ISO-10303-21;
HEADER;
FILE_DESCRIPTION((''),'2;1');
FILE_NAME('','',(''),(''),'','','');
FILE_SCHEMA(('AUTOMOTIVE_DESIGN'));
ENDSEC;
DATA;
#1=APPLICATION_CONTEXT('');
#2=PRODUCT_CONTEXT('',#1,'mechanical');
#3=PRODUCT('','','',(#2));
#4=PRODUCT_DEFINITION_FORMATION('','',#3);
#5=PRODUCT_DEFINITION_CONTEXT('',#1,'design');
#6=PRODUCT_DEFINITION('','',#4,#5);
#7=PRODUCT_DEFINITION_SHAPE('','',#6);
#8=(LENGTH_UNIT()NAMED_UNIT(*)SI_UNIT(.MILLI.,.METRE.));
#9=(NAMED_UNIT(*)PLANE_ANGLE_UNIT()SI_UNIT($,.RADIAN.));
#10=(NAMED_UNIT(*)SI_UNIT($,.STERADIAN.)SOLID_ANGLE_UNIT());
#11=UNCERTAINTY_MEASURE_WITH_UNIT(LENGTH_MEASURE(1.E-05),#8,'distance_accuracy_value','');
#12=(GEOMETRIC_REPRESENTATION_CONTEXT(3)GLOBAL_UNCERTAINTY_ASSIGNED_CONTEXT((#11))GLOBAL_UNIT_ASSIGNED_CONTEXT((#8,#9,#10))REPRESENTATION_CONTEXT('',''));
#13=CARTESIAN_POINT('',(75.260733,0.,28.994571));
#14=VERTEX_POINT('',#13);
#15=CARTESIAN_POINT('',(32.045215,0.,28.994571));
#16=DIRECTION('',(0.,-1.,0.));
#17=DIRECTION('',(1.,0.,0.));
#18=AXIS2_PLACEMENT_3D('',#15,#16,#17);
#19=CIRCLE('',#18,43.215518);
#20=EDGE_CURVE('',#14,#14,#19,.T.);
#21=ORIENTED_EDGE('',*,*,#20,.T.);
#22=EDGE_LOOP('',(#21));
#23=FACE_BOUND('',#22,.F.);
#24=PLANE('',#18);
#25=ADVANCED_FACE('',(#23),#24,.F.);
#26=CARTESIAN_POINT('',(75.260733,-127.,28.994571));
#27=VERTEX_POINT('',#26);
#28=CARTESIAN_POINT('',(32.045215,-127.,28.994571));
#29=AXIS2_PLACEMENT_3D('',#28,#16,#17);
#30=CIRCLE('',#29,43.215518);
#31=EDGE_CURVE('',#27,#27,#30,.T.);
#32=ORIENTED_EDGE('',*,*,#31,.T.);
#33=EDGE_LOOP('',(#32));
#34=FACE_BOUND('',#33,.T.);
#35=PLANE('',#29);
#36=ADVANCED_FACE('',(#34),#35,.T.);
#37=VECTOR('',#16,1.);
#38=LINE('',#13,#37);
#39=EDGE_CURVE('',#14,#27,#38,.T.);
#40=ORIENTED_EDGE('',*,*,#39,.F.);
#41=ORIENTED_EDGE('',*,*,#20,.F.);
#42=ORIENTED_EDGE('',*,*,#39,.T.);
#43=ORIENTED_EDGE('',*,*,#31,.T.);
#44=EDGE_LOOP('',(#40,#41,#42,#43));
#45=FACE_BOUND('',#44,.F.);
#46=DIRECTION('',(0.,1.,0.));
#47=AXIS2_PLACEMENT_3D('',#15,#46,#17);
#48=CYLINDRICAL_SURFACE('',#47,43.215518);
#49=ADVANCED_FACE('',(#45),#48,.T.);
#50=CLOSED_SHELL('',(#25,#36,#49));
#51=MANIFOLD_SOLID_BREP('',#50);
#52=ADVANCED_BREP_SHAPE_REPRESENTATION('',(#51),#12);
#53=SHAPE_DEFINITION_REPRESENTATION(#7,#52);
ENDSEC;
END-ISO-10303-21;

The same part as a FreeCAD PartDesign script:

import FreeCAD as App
import Part
import Sketcher
from FreeCAD import Vector
Q = App.Units.Quantity


def add_polygon(sketch, points):
    """Adds a closed chain of lines whose ends are joined by coincident constraints."""
    first, n = sketch.GeometryCount, len(points)
    for a, b in zip(points, points[1:] + points[:1]):
        sketch.addGeometry(Part.LineSegment(App.Vector(*a, 0), App.Vector(*b, 0)), False)
    for i in range(n):
        sketch.addConstraint(Sketcher.Constraint("Coincident", first + i, 2, first + (i + 1) % n, 1))

doc = App.newDocument("Part")
body = doc.addObject("PartDesign::Body", "Body")

# Sketch on XY plane
sketch1 = body.newObject("Sketcher::SketchObject", "Sketch")
sketch1.AttachmentSupport = (doc.getObject("XY_Plane"), [""])
sketch1.MapMode = "FlatFace"
add_polygon(sketch1, [(0, 0), (0, -22), (24, -22), (24, 0)])  # lines 0-3
sketch1.addConstraint(Sketcher.Constraint("Vertical", 0))
sketch1.addConstraint(Sketcher.Constraint("Horizontal", 1))
sketch1.addConstraint(Sketcher.Constraint("Vertical", 2))
sketch1.addConstraint(Sketcher.Constraint("Horizontal", 3))
sketch1.addConstraint(Sketcher.Constraint("Coincident", 3, 2, -1, 1))
sketch1.addConstraint(Sketcher.Constraint("DistanceX", 1, 1, 1, 2, Q("0.94 in")))
sketch1.addConstraint(Sketcher.Constraint("DistanceY", 0, 2, 0, 1, Q("0.88 in")))
pad1 = body.newObject("PartDesign::Pad", "Pad")
pad1.Profile = sketch1
pad1.Length = Q("1.25 in")

# Sketch on XY plane
sketch2 = body.newObject("Sketcher::SketchObject", "Sketch001")
sketch2.AttachmentSupport = (doc.getObject("XY_Plane"), [""])
sketch2.MapMode = "FlatFace"
sketch2.AttachmentOffset = App.Placement(Vector(0, 0, 1.25 * 25.4), App.Rotation())
sketch2.addGeometry(Part.Circle(Vector(22.5, -1.5, 0), Vector(0, 0, 1), 0.8), False)
sketch2.addConstraint(Sketcher.Constraint("Diameter", 0, 1.592218))
sketch2.addConstraint(Sketcher.Constraint("DistanceX", -1, 1, 0, 3, 22.537371))
sketch2.addConstraint(Sketcher.Constraint("DistanceY", 0, 3, -1, 1, 1.488913))
pocket1 = body.newObject("PartDesign::Pocket", "Pocket")
pocket1.Profile = sketch2
pocket1.Length = Q("1 in")

# Sketch on XY plane
sketch3 = body.newObject("Sketcher::SketchObject", "Sketch002")
sketch3.AttachmentSupport = (doc.getObject("XY_Plane"), [""])
sketch3.MapMode = "FlatFace"
sketch3.AttachmentOffset = App.Placement(Vector(0, 0, 1.25 * 25.4), App.Rotation())
sketch3.addGeometry(Part.Circle(Vector(1.1, -1.2, 0), Vector(0, 0, 1), 0.8), False)
sketch3.addConstraint(Sketcher.Constraint("Diameter", 0, 1.67127))
sketch3.addConstraint(Sketcher.Constraint("DistanceY", 0, 3, -1, 1, 1.193718))
sketch3.addConstraint(Sketcher.Constraint("DistanceX", -1, 1, 0, 3, 1.065723))
pocket2 = body.newObject("PartDesign::Pocket", "Pocket001")
pocket2.Profile = sketch3
pocket2.Length = Q("0.25 in")

# Sketch on XY plane
sketch4 = body.newObject("Sketcher::SketchObject", "Sketch003")
sketch4.AttachmentSupport = (doc.getObject("XY_Plane"), [""])
sketch4.MapMode = "FlatFace"
sketch4.AttachmentOffset = App.Placement(Vector(0, 0, 1.25 * 25.4), App.Rotation())
add_polygon(sketch4, [(0, 0), (0, -22.4), (23.9, -22.4), (23.9, 0)])  # lines 0-3
sketch4.addGeometry(Part.Circle(Vector(22.5, -1.5, 0), Vector(0, 0, 1), 0.8), False)  # 4
sketch4.addConstraint(Sketcher.Constraint("Vertical", 0))
sketch4.addConstraint(Sketcher.Constraint("Horizontal", 1))
sketch4.addConstraint(Sketcher.Constraint("Vertical", 2))
sketch4.addConstraint(Sketcher.Constraint("Horizontal", 3))
sketch4.addConstraint(Sketcher.Constraint("Coincident", 3, 2, -1, 1))
sketch4.addConstraint(Sketcher.Constraint("DistanceX", 1, 1, 1, 2, Q("0.94 in")))
sketch4.addConstraint(Sketcher.Constraint("DistanceY", 0, 2, 0, 1, Q("0.88 in")))
sketch4.addConstraint(Sketcher.Constraint("Diameter", 4, 1.592218))
sketch4.addConstraint(Sketcher.Constraint("DistanceX", -1, 1, 4, 3, 22.537371))
sketch4.addConstraint(Sketcher.Constraint("DistanceY", 4, 3, -1, 1, 1.488913))
pocket3 = body.newObject("PartDesign::Pocket", "Pocket002")
pocket3.Profile = sketch4
pocket3.Length = Q("0.25 in")

# Sketch on XZ plane
sketch5 = body.newObject("Sketcher::SketchObject", "Sketch004")
sketch5.AttachmentSupport = (doc.getObject("XZ_Plane"), [""])
sketch5.MapMode = "FlatFace"
sketch5.addGeometry(Part.Circle(Vector(32, 29, 0), Vector(0, 0, 1), 43), False)
sketch5.addConstraint(Sketcher.Constraint("Diameter", 0, 86.431036))
sketch5.addConstraint(Sketcher.Constraint("DistanceY", -1, 1, 0, 3, 28.994571))
sketch5.addConstraint(Sketcher.Constraint("DistanceX", -1, 1, 0, 3, 32.045215))
pad2 = body.newObject("PartDesign::Pad", "Pad001")
pad2.Profile = sketch5
pad2.Length = Q("5 in")

doc.recompute()
